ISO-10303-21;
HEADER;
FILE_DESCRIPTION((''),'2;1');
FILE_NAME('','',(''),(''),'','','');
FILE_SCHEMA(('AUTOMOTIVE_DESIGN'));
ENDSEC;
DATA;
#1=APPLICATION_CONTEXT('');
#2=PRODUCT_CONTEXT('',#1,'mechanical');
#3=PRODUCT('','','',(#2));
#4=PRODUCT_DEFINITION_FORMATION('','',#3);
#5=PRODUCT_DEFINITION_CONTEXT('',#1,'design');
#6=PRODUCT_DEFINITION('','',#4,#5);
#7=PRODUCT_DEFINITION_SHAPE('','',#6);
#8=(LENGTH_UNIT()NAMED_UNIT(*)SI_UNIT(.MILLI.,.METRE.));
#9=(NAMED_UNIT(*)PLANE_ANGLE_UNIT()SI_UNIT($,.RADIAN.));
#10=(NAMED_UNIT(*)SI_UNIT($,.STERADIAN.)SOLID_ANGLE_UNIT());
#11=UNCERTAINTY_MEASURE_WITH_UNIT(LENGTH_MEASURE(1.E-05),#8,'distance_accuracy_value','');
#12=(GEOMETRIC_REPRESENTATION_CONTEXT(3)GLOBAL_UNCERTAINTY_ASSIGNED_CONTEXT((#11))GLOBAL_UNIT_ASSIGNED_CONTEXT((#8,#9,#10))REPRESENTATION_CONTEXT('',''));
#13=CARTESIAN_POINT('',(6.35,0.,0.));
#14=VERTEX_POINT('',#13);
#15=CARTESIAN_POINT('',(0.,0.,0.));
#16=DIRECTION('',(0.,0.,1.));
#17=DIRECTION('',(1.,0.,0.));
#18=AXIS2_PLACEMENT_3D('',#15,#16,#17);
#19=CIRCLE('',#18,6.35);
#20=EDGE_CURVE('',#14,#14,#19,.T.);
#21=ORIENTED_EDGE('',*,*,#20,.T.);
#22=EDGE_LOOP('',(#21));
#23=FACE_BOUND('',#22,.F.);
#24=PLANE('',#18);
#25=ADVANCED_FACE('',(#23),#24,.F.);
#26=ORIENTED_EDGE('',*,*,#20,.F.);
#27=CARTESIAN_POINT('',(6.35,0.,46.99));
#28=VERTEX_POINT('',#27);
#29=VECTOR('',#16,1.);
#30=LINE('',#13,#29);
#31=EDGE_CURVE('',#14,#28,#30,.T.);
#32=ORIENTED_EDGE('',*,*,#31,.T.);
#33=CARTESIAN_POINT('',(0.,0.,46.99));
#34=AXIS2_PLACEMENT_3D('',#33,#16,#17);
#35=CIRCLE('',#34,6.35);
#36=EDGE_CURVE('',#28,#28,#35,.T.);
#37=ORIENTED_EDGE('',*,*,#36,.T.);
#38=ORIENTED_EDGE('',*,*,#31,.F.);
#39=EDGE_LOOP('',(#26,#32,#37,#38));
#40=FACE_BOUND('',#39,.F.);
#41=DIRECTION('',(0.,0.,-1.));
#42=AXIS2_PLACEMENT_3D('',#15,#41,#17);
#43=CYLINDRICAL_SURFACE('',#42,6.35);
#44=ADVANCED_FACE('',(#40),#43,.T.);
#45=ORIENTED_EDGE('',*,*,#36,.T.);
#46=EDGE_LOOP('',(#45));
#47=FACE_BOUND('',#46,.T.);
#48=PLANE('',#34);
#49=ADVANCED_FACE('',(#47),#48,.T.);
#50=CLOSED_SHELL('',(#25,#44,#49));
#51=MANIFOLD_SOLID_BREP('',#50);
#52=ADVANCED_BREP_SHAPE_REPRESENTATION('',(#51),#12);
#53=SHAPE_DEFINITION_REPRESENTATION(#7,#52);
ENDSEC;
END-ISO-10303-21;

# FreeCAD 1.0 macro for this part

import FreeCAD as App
import Part
import Sketcher

V = App.Vector
Q = App.Units.Quantity

doc = App.newDocument("Part")
body = doc.addObject("PartDesign::Body", "Body")

sketch1 = body.newObject("Sketcher::SketchObject", "Sketch")
sketch1.AttachmentSupport = (doc.getObject("XY_Plane"), [""])
sketch1.MapMode = "FlatFace"
sketch1.addGeometry(Part.Circle(V(0, 0, 0), V(0, 0, 1), 6), False)
sketch1.addConstraint(Sketcher.Constraint("Coincident", 0, 3, -1, 1))
sketch1.addConstraint(Sketcher.Constraint("Diameter", 0, Q("0.5 in")))
pad1 = body.newObject("PartDesign::Pad", "Pad")
pad1.Profile = sketch1
pad1.Length = Q("1.85 in")

doc.recompute()
